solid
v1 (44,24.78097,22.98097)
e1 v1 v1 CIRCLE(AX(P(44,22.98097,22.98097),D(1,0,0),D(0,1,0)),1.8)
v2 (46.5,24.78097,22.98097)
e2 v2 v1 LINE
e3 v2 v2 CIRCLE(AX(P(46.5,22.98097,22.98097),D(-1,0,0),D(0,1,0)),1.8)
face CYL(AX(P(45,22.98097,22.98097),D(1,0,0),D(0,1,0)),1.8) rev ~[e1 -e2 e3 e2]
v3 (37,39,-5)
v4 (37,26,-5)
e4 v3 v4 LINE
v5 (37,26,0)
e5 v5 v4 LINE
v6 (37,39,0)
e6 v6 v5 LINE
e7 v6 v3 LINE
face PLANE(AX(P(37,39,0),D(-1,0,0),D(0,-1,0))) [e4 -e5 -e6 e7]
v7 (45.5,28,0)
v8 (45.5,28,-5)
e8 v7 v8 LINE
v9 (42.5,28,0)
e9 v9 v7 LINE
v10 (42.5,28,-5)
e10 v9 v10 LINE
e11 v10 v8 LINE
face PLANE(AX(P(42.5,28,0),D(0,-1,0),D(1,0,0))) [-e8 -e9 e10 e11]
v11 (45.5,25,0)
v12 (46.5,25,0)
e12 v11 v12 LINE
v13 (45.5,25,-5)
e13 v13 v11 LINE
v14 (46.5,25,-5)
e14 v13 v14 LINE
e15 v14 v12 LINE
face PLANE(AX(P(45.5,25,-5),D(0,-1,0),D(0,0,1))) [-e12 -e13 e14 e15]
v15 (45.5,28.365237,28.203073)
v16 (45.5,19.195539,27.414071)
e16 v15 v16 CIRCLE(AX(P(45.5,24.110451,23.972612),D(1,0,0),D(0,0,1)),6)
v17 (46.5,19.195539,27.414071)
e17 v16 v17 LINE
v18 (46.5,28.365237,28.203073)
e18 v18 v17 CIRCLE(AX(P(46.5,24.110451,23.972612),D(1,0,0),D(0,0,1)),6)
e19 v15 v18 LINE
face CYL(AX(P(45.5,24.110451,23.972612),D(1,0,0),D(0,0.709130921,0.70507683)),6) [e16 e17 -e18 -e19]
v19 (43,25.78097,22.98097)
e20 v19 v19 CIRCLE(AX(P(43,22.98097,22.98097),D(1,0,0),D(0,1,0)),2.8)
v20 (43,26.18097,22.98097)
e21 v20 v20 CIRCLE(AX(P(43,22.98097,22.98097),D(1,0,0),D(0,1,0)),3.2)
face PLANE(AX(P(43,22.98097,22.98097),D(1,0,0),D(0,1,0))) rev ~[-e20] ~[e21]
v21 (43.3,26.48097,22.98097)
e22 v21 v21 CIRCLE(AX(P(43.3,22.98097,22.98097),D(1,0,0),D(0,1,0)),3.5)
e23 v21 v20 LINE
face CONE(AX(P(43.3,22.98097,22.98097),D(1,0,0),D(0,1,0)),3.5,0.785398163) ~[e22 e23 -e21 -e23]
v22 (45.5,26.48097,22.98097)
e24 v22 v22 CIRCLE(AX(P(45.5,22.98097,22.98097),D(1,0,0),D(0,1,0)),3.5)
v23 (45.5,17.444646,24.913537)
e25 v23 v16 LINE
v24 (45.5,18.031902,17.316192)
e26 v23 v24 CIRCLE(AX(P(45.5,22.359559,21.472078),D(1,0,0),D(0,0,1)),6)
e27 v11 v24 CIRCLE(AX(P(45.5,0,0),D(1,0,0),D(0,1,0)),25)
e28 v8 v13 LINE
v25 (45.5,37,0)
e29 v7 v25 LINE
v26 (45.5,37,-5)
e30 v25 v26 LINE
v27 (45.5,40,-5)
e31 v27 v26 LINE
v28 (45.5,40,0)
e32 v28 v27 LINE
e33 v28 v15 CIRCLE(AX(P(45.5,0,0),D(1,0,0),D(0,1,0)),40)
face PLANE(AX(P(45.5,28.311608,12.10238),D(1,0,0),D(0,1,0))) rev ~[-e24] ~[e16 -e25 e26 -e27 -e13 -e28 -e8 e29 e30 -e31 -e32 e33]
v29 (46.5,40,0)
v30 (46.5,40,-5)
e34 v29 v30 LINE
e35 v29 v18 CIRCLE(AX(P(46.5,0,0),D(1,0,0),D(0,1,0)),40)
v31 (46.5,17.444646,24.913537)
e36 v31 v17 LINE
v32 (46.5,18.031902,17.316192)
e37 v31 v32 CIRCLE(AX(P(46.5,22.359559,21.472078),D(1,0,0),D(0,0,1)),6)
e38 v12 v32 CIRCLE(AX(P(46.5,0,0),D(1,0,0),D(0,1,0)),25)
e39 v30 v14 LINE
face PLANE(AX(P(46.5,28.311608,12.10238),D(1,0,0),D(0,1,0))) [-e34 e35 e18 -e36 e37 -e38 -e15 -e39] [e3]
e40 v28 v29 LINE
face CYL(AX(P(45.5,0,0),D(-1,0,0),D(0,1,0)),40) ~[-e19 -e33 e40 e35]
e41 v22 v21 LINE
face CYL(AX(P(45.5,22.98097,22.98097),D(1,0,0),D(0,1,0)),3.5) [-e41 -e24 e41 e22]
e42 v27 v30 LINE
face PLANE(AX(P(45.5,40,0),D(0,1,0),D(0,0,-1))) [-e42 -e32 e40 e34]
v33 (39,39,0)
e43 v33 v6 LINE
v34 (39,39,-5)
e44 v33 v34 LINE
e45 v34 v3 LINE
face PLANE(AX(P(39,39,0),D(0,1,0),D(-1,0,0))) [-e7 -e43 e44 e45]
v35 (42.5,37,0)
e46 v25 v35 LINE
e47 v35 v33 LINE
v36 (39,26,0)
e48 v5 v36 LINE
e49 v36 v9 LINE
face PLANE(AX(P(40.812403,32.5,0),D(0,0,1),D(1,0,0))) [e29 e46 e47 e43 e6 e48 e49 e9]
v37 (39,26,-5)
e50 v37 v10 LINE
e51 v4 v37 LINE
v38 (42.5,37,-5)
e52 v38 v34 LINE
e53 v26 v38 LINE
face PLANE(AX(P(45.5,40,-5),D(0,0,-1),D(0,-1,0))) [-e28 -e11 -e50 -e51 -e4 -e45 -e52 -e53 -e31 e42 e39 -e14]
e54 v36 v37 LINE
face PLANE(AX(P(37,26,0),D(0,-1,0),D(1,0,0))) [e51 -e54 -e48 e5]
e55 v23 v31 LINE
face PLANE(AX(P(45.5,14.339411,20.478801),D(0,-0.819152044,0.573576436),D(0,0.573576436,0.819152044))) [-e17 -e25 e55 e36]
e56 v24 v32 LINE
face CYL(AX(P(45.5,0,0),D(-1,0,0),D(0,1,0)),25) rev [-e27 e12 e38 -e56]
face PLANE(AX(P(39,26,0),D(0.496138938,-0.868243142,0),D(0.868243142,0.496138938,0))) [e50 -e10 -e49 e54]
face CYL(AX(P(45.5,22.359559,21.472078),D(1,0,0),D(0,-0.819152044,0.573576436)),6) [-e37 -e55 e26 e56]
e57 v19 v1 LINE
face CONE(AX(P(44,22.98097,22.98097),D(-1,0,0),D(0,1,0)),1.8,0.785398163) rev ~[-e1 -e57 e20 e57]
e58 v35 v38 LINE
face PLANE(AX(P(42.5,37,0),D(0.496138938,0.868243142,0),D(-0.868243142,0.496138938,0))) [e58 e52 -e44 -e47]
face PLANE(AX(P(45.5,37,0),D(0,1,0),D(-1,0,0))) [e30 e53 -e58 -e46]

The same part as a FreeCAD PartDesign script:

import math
import FreeCAD as App
import Part
import Sketcher

V = App.Vector
Q = App.Units.Quantity


def edges_at(feature, points):
    """Names of the edges that pass closest to the given points."""
    edges = feature.Shape.Edges
    near = lambda p: min(range(len(edges)), key=lambda i: edges[i].distToShape(Part.Vertex(*p))[0])
    return sorted({f"Edge{near(p) + 1}" for p in points})

doc = App.newDocument("Part")
body = doc.addObject("PartDesign::Body", "Body")

sketch1 = body.newObject("Sketcher::SketchObject", "Sketch")
sketch1.AttachmentSupport = (doc.getObject("YZ_Plane"), [""])
sketch1.MapMode = "FlatFace"
sketch1.AttachmentOffset = App.Placement(V(0, 0, 45.5), App.Rotation())
sketch1.addGeometry([
    Part.ArcOfCircle(Part.Circle(V(0, 0, 0), V(0, 0, 1), 40), math.radians(0), math.radians(55)),
    Part.LineSegment(V(23, 33, 0), V(14, 20, 0)),
    Part.ArcOfCircle(Part.Circle(V(0, 0, 0), V(0, 0, 1), 25), math.radians(0), math.radians(55)),
    Part.LineSegment(V(25, 0, 0), V(25, -5, 0)),
    Part.LineSegment(V(25, -5, 0), V(40, -5, 0)),
    Part.LineSegment(V(40, -5, 0), V(40, 0, 0)),
], False)
sketch1.addConstraint([
    Sketcher.Constraint("Coincident", 0, 2, 1, 1),
    Sketcher.Constraint("Coincident", 1, 2, 2, 2),
    Sketcher.Constraint("Tangent", 2, 1, 3, 1),
    Sketcher.Constraint("Coincident", 3, 2, 4, 1),
    Sketcher.Constraint("Coincident", 4, 2, 5, 1),
    Sketcher.Constraint("Tangent", 5, 2, 0, 1),
    Sketcher.Constraint("Vertical", 3),
    Sketcher.Constraint("Horizontal", 4),
    Sketcher.Constraint("Vertical", 5),
    Sketcher.Constraint("Coincident", 0, 3, -1, 1),
    Sketcher.Constraint("Coincident", 2, 3, -1, 1),
    Sketcher.Constraint("Radius", 0, Q("40 mm")),
    Sketcher.Constraint("Radius", 2, Q("25 mm")),
    Sketcher.Constraint("DistanceY", 3, 2, 3, 1, Q("5 mm")),
    Sketcher.Constraint("Angle", 1, Q("-125 deg")),
    Sketcher.Constraint("DistanceY", -1, 1, 1, 2, Q("20.478801 mm")),
])
pad1 = body.newObject("PartDesign::Pad", "Pad")
pad1.Profile = sketch1
pad1.Length = 1

sketch2 = body.newObject("Sketcher::SketchObject", "Sketch001")
sketch2.AttachmentSupport = (doc.getObject("YZ_Plane"), [""])
sketch2.MapMode = "FlatFace"
sketch2.AttachmentOffset = App.Placement(V(0, 0, 45.5), App.Rotation())
sketch2.addGeometry(Part.Circle(V(23, 23, 0), V(0, 0, 1), 3.5), False)
sketch2.addConstraint([
    Sketcher.Constraint("Diameter", 0, Q("7 mm")),
    Sketcher.Constraint("DistanceX", -1, 1, 0, 3, Q("22.98097 mm")),
    Sketcher.Constraint("DistanceY", -1, 1, 0, 3, Q("22.98097 mm")),
])
pad2 = body.newObject("PartDesign::Pad", "Pad001")
pad2.Profile = sketch2
pad2.Length = 2.5
pad2.Reversed = True

sketch3 = body.newObject("Sketcher::SketchObject", "Sketch002")
sketch3.AttachmentSupport = (doc.getObject("XY_Plane"), [""])
sketch3.MapMode = "FlatFace"
sketch3.addGeometry([
    Part.LineSegment(V(39, 39, 0), V(37, 39, 0)),
    Part.LineSegment(V(37, 39, 0), V(37, 26, 0)),
    Part.LineSegment(V(37, 26, 0), V(39, 26, 0)),
    Part.LineSegment(V(39, 26, 0), V(42.5, 28, 0)),
    Part.LineSegment(V(42.5, 28, 0), V(45.5, 28, 0)),
    Part.LineSegment(V(45.5, 28, 0), V(45.5, 37, 0)),
    Part.LineSegment(V(45.5, 37, 0), V(42.5, 37, 0)),
    Part.LineSegment(V(42.5, 37, 0), V(39, 39, 0)),
], False)
sketch3.addConstraint([
    Sketcher.Constraint("Coincident", 0, 2, 1, 1),
    Sketcher.Constraint("Coincident", 1, 2, 2, 1),
    Sketcher.Constraint("Coincident", 2, 2, 3, 1),
    Sketcher.Constraint("Coincident", 3, 2, 4, 1),
    Sketcher.Constraint("Coincident", 4, 2, 5, 1),
    Sketcher.Constraint("Coincident", 5, 2, 6, 1),
    Sketcher.Constraint("Coincident", 6, 2, 7, 1),
    Sketcher.Constraint("Coincident", 7, 2, 0, 1),
    Sketcher.Constraint("Horizontal", 0),
    Sketcher.Constraint("Vertical", 1),
    Sketcher.Constraint("Horizontal", 2),
    Sketcher.Constraint("Horizontal", 4),
    Sketcher.Constraint("Vertical", 5),
    Sketcher.Constraint("Horizontal", 6),
    Sketcher.Constraint("Vertical", 3, 2, 6, 2),
    Sketcher.Constraint("Vertical", 2, 2, 7, 2),
    Sketcher.Constraint("Equal", 3, 7),
    Sketcher.Constraint("DistanceX", 0, 2, 0, 1, Q("2 mm")),
    Sketcher.Constraint("DistanceX", 4, 1, 4, 2, Q("3 mm")),
    Sketcher.Constraint("DistanceY", 1, 2, 1, 1, Q("13 mm")),
    Sketcher.Constraint("DistanceY", 5, 1, 5, 2, Q("9 mm")),
    Sketcher.Constraint("DistanceX", -1, 1, 0, 2, Q("37 mm")),
    Sketcher.Constraint("DistanceY", -1, 1, 0, 2, Q("39 mm")),
    Sketcher.Constraint("DistanceX", -1, 1, 3, 2, Q("42.5 mm")),
])
pad3 = body.newObject("PartDesign::Pad", "Pad002")
pad3.Profile = sketch3
pad3.Length = 5
pad3.Reversed = True

sketch4 = body.newObject("Sketcher::SketchObject", "Sketch003")
sketch4.AttachmentSupport = (doc.getObject("YZ_Plane"), [""])
sketch4.MapMode = "FlatFace"
sketch4.AttachmentOffset = App.Placement(V(0, 0, 45), App.Rotation())
sketch4.addGeometry(Part.Circle(V(23, 23, 0), V(0, 0, 1), 1.8), False)
sketch4.addConstraint([
    Sketcher.Constraint("Diameter", 0, Q("3.6 mm")),
    Sketcher.Constraint("DistanceX", -1, 1, 0, 3, Q("22.98097 mm")),
    Sketcher.Constraint("DistanceY", -1, 1, 0, 3, Q("22.98097 mm")),
])
pocket1 = body.newObject("PartDesign::Pocket", "Pocket")
pocket1.Profile = sketch4
pocket1.Type = "ThroughAll"
pocket1.Midplane = True
doc.recompute()

chamfer = body.newObject("PartDesign::Chamfer", "Chamfer")
chamfer.Base = (pocket1, edges_at(pocket1, [(43, 21.181, 22.981)]))
chamfer.Size = 1
doc.recompute()

fillet = body.newObject("PartDesign::Fillet", "Fillet")
fillet.Base = (chamfer, edges_at(chamfer, [(46, 14.339, 20.479), (46, 22.943, 32.766)]))
fillet.Radius = 6
doc.recompute()

chamfer2 = body.newObject("PartDesign::Chamfer", "Chamfer001")
chamfer2.Base = (fillet, edges_at(fillet, [(43, 19.481, 22.981)]))
chamfer2.Size = 0.3

doc.recompute()
